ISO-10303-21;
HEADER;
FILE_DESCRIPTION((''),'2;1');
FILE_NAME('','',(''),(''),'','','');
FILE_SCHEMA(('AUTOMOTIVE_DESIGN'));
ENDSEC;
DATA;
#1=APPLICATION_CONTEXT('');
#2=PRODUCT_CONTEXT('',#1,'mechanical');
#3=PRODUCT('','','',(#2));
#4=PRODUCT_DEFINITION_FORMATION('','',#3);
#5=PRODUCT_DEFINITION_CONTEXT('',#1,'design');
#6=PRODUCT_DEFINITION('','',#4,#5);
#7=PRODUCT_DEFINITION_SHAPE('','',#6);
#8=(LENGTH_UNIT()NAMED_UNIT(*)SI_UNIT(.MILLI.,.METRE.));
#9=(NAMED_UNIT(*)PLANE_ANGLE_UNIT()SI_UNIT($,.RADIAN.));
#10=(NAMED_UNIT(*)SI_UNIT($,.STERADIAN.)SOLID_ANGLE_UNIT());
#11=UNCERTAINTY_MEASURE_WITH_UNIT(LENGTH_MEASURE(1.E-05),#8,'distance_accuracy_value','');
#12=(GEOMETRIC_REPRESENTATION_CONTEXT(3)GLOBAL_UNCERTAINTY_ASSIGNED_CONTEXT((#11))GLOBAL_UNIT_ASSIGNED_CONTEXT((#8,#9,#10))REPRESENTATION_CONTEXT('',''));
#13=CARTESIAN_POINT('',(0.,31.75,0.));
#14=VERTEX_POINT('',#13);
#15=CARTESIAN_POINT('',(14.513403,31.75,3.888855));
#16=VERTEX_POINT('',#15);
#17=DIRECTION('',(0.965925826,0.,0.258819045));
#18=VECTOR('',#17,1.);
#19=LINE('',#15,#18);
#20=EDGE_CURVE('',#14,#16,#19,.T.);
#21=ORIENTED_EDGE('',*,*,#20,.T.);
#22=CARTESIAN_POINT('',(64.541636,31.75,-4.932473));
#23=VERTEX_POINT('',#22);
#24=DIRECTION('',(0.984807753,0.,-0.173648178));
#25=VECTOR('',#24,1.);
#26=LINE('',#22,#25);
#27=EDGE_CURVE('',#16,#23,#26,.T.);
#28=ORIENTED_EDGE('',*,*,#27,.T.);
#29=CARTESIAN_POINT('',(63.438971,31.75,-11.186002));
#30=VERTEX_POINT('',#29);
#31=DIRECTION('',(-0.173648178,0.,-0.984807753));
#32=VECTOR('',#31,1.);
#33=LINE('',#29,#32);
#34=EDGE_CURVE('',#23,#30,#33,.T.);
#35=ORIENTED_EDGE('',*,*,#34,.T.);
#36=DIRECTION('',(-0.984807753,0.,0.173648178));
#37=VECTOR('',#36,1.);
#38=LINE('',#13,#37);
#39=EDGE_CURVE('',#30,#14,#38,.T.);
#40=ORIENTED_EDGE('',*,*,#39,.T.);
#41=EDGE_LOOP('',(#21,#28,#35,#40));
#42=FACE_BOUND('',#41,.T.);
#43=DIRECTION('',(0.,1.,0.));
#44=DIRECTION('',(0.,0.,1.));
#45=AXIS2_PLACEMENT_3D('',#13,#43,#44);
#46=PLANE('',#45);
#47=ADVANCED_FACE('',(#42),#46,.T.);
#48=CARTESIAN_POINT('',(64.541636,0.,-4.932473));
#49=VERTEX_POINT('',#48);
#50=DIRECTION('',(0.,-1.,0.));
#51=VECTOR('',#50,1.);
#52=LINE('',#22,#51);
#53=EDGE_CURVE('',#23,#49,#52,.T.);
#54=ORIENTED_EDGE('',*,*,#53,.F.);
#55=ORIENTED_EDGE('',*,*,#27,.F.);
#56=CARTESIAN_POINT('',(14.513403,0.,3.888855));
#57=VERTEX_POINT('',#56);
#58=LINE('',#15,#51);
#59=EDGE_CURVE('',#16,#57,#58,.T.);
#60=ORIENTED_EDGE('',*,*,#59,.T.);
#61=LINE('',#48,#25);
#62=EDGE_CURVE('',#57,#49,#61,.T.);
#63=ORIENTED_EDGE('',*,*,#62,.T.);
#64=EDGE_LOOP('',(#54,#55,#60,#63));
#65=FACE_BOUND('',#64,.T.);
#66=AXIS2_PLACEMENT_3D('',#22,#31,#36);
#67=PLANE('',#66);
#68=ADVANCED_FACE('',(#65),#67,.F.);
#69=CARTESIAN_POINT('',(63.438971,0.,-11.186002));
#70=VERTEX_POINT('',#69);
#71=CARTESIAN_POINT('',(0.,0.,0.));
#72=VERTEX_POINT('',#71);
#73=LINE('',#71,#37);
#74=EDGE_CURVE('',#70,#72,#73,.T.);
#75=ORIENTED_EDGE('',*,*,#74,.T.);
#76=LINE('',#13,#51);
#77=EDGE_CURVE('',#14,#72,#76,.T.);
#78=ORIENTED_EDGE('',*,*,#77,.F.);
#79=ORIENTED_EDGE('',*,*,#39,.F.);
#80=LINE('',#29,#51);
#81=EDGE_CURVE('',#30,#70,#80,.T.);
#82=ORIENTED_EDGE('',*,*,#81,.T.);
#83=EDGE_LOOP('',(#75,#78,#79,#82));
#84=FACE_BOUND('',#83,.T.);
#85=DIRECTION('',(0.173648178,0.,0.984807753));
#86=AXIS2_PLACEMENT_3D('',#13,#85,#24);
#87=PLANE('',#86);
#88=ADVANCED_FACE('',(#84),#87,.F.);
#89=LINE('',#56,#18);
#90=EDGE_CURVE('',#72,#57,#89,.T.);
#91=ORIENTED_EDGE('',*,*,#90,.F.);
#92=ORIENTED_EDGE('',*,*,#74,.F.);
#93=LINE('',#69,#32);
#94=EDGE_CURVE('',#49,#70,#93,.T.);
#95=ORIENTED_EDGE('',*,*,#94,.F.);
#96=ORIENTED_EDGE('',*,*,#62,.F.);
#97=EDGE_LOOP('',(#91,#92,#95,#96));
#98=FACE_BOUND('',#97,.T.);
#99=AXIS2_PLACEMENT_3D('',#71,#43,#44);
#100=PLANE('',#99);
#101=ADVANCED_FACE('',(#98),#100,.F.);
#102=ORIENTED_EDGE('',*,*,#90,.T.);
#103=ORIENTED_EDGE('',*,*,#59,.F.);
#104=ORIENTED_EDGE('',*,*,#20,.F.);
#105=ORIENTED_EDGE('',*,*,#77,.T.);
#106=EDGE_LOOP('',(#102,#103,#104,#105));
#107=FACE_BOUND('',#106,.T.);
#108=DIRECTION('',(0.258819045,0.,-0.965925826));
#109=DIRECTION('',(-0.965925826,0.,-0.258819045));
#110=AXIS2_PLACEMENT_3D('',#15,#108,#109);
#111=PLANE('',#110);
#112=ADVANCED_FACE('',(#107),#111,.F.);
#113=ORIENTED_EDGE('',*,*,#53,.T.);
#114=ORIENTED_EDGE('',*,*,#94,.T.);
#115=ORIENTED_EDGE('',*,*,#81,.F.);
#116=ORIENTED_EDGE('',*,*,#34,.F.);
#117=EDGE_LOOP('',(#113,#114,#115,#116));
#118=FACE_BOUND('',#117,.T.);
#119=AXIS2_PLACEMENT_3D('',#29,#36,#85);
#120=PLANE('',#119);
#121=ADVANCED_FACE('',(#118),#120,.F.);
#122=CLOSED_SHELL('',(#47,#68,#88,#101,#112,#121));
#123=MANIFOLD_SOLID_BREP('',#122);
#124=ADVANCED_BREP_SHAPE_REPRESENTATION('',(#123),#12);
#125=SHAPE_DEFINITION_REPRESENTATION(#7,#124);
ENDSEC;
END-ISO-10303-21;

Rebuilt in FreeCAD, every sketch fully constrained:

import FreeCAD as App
import Part
import Sketcher
from FreeCAD import Vector
Q = App.Units.Quantity


def add_polygon(sketch, points):
    """Adds a closed chain of lines whose ends are joined by coincident constraints."""
    first, n = sketch.GeometryCount, len(points)
    for a, b in zip(points, points[1:] + points[:1]):
        sketch.addGeometry(Part.LineSegment(App.Vector(*a, 0), App.Vector(*b, 0)), False)
    for i in range(n):
        sketch.addConstraint(Sketcher.Constraint("Coincident", first + i, 2, first + (i + 1) % n, 1))

doc = App.newDocument("Part")
body = doc.addObject("PartDesign::Body", "Body")

sketch1 = body.newObject("Sketcher::SketchObject", "Sketch")
sketch1.AttachmentSupport = (doc.getObject("XZ_Plane"), [""])
sketch1.MapMode = "FlatFace"
add_polygon(sketch1, [(63, -11), (0, 0), (15, 4), (65, -5)])
sketch1.addConstraint([
    Sketcher.Constraint("Coincident", 0, 2, -1, 1),
    Sketcher.Constraint("Parallel", 0, 2),
    Sketcher.Constraint("Perpendicular", 2, 3),
    Sketcher.Constraint("Distance", 2, Q("2 in")),
    Sketcher.Constraint("Angle", 0, Q("170 deg")),
    Sketcher.Constraint("Angle", 1, Q("15 deg")),
    Sketcher.Constraint("Distance", 3, Q("0.25 in")),
])
pad1 = body.newObject("PartDesign::Pad", "Pad")
pad1.Profile = sketch1
pad1.Length = Q("1.25 in")
pad1.Reversed = True

doc.recompute()
